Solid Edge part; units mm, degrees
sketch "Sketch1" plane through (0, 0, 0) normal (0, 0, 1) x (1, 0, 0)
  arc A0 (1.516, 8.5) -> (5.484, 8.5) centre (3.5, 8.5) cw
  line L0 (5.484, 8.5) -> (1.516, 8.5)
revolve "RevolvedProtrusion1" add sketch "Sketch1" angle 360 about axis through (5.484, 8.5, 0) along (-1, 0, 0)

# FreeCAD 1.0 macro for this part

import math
import FreeCAD as App
import Part
import Sketcher

V = App.Vector

doc = App.newDocument("Part")
body = doc.addObject("PartDesign::Body", "Body")

sketch1 = doc.addObject("Sketcher::SketchObject", "Sketch")
body.addObject(sketch1)
sketch1.AttachmentSupport = (doc.XY_Plane, [""])
sketch1.MapMode = "FlatFace"
sketch1.addGeometry([
    Part.ArcOfCircle(Part.Circle(V(3.5, 8.5, 0), V(0, 0, 1), 1.984), math.radians(0), math.radians(180)),
    Part.LineSegment(V(1.516, 8.5, 0), V(5.484, 8.5, 0)),
], False)
sketch1.addGeometry(Part.LineSegment(V(5.484, 8.5, 0), V(1.516, 8.5, 0)), True)
sketch1.addConstraint([
    Sketcher.Constraint("Coincident", 0, 1, 1, 2),
    Sketcher.Constraint("Coincident", 1, 1, 0, 2),
    Sketcher.Constraint("Horizontal", 1),
    Sketcher.Constraint("Horizontal", 2),
    Sketcher.Constraint("Coincident", 2, 1, 0, 1),
    Sketcher.Constraint("Equal", 1, 2),
    Sketcher.Constraint("Radius", 0, 1.984),
    Sketcher.Constraint("DistanceX", -1, 1, 0, 3, 3.5),
    Sketcher.Constraint("DistanceY", -1, 1, 0, 3, 8.5),
    Sketcher.Constraint("DistanceY", -1, 1, 0, 1, 8.5),
])
revolution = doc.addObject("PartDesign::Revolution", "Revolution")
body.addObject(revolution)
revolution.Profile = sketch1
revolution.ReferenceAxis = (sketch1, ["Axis0"])
revolution.Angle = 360

doc.recompute()
